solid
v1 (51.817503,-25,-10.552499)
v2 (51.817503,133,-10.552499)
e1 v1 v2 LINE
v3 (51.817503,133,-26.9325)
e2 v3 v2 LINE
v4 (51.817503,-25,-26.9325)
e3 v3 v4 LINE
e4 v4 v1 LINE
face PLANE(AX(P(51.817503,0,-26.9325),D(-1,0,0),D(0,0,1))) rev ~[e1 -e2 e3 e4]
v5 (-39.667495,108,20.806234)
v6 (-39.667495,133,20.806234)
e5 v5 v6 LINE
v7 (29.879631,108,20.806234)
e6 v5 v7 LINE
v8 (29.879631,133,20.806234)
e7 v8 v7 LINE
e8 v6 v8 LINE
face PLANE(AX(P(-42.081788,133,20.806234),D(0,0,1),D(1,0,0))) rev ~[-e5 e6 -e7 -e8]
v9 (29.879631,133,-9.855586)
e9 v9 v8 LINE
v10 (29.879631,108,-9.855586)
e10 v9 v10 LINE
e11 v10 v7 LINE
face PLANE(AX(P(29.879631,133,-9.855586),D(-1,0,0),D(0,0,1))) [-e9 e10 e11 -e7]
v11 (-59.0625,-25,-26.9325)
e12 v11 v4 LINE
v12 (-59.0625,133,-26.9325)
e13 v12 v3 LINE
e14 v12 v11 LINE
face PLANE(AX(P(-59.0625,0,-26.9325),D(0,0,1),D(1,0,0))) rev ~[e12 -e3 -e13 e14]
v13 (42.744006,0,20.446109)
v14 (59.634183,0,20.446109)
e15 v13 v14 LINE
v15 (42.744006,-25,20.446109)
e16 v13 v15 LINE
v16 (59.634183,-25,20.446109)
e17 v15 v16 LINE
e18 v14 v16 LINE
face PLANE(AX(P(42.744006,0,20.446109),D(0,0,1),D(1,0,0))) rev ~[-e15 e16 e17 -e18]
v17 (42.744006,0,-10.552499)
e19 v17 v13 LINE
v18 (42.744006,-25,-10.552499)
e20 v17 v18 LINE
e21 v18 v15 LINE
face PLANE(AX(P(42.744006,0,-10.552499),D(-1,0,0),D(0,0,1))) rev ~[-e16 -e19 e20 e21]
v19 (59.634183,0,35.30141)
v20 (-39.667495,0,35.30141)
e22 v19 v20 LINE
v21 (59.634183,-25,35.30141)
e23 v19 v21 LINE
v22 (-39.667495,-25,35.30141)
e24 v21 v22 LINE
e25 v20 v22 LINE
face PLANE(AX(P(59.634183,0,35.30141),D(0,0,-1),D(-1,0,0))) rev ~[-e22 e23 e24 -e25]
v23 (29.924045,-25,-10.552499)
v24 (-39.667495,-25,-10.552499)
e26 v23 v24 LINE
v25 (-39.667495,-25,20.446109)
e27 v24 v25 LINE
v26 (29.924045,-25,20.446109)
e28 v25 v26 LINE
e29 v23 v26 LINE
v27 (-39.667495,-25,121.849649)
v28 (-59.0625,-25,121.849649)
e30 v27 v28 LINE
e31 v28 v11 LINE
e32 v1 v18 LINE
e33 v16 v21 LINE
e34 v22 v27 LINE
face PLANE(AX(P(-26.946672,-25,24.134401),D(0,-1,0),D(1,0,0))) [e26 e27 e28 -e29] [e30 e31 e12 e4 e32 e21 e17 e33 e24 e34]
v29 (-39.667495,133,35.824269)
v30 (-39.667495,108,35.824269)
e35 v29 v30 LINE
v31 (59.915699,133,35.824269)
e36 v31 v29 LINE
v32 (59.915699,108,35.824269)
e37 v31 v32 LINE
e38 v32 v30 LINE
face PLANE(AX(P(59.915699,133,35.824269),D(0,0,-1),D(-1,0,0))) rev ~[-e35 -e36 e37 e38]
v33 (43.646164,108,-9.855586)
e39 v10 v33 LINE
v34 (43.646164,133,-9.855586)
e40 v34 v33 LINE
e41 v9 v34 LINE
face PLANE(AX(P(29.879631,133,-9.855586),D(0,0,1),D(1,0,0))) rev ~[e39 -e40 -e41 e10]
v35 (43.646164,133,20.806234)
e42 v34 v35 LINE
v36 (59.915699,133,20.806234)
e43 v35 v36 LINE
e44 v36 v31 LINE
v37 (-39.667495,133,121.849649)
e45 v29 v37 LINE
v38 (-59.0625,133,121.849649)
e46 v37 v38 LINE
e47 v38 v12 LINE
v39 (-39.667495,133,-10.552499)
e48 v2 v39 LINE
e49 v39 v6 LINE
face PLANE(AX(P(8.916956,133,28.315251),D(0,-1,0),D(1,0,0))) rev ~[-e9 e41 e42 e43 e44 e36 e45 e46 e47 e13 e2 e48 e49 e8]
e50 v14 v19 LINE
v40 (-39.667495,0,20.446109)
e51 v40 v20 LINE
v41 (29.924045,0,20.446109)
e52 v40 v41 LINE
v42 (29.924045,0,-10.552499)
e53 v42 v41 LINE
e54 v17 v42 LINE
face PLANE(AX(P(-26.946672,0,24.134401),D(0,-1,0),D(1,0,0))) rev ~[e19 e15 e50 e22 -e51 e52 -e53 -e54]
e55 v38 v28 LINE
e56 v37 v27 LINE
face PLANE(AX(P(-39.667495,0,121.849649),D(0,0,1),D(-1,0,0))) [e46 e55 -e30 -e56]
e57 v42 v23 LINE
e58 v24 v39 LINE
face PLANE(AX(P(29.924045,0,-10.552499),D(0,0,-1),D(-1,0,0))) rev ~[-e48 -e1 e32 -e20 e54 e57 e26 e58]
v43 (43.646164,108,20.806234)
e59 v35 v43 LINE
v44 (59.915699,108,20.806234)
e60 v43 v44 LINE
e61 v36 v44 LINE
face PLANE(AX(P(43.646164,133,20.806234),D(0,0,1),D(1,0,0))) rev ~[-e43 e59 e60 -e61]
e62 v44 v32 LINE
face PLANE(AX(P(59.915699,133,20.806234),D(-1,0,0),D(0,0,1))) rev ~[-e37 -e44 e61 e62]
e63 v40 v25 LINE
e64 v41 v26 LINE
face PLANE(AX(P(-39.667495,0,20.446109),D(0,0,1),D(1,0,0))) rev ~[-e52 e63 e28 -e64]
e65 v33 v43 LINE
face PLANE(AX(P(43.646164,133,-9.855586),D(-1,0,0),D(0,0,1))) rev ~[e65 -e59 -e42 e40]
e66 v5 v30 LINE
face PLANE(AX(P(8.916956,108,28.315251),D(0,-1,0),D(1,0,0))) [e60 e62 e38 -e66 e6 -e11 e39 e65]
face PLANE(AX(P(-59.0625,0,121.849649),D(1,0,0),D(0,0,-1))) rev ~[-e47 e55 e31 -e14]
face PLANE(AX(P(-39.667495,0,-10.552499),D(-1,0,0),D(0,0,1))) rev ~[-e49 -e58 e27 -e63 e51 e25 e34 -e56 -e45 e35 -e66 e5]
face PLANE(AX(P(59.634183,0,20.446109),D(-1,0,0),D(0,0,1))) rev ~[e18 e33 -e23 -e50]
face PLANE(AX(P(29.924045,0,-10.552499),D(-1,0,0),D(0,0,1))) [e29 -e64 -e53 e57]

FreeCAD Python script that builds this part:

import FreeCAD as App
import Part
import Sketcher
from FreeCAD import Vector
Q = App.Units.Quantity


def add_polygon(sketch, points):
    """Adds a closed chain of lines whose ends are joined by coincident constraints."""
    first, n = sketch.GeometryCount, len(points)
    for a, b in zip(points, points[1:] + points[:1]):
        sketch.addGeometry(Part.LineSegment(App.Vector(*a, 0), App.Vector(*b, 0)), False)
    for i in range(n):
        sketch.addConstraint(Sketcher.Constraint("Coincident", first + i, 2, first + (i + 1) % n, 1))

doc = App.newDocument("Part")
body = doc.addObject("PartDesign::Body", "Body")

# Sketch on XZ plane
sketch1 = doc.addObject("Sketcher::SketchObject", "Sketch")
body.addObject(sketch1)
sketch1.AttachmentSupport = (doc.XZ_Plane, [""])
sketch1.MapMode = "FlatFace"
add_polygon(sketch1, [(-40, -11), (-40, 122), (-59, 122), (-59, -27), (52, -27), (52, -11)])  # lines 0-5
sketch1.addConstraint([
    Sketcher.Constraint("Vertical", 0),
    Sketcher.Constraint("Horizontal", 1),
    Sketcher.Constraint("Vertical", 2),
    Sketcher.Constraint("Horizontal", 3),
    Sketcher.Constraint("Vertical", 4),
    Sketcher.Constraint("Horizontal", 5),
    Sketcher.Constraint("DistanceY", 4, 1, 4, 2, Q("16.380001 mm")),
    Sketcher.Constraint("DistanceX", 5, 2, 5, 1, Q("91.484998 mm")),
    Sketcher.Constraint("DistanceY", 0, 1, 0, 2, Q("132.402148 mm")),
    Sketcher.Constraint("DistanceX", 1, 2, -1, 1, Q("59.0625 mm")),
    Sketcher.Constraint("DistanceY", 2, 2, -1, 1, Q("26.9325 mm")),
    Sketcher.Constraint("DistanceX", 1, 2, 1, 1, Q("19.395005 mm")),
])
pad1 = doc.addObject("PartDesign::Pad", "Pad")
body.addObject(pad1)
pad1.Profile = sketch1
pad1.Length = 133
pad1.Reversed = True

# Sketch on XZ plane
sketch2 = doc.addObject("Sketcher::SketchObject", "Sketch001")
body.addObject(sketch2)
sketch2.AttachmentSupport = (doc.XZ_Plane, [""])
sketch2.MapMode = "FlatFace"
add_polygon(sketch2, [(-40, 35), (-40, 122), (-59, 122), (-59, -27), (52, -27), (52, -11), (43, -11), (43, 20), (60, 20), (60, 35)])  # lines 0-9
add_polygon(sketch2, [(-40, -11), (-40, 20), (30, 20), (30, -11)])  # lines 10-13
sketch2.addConstraint([
    Sketcher.Constraint("Vertical", 0),
    Sketcher.Constraint("Horizontal", 1),
    Sketcher.Constraint("Vertical", 2),
    Sketcher.Constraint("Horizontal", 3),
    Sketcher.Constraint("Vertical", 4),
    Sketcher.Constraint("Horizontal", 5),
    Sketcher.Constraint("Vertical", 6),
    Sketcher.Constraint("Horizontal", 7),
    Sketcher.Constraint("Vertical", 8),
    Sketcher.Constraint("Horizontal", 9),
    Sketcher.Constraint("Vertical", 10),
    Sketcher.Constraint("Horizontal", 11),
    Sketcher.Constraint("Vertical", 12),
    Sketcher.Constraint("Horizontal", 13),
    Sketcher.Constraint("Horizontal", 7, 2, 10, 2),
    Sketcher.Constraint("Horizontal", 5, 2, 12, 2),
    Sketcher.Constraint("Vertical", 9, 2, 10, 2),
    Sketcher.Constraint("DistanceY", 4, 1, 4, 2, Q("16.380001 mm")),
    Sketcher.Constraint("DistanceY", 8, 1, 8, 2, Q("14.855301 mm")),
    Sketcher.Constraint("DistanceX", 0, 2, 3, 2, Q("91.484998 mm")),
    Sketcher.Constraint("DistanceX", 9, 2, 9, 1, Q("99.301678 mm")),
    Sketcher.Constraint("DistanceX", 11, 1, 11, 2, Q("69.591541 mm")),
    Sketcher.Constraint("DistanceY", 0, 1, 0, 2, Q("86.548239 mm")),
    Sketcher.Constraint("DistanceY", 2, 2, 2, 1, Q("148.782149 mm")),
    Sketcher.Constraint("DistanceX", 1, 2, -1, 1, Q("59.0625 mm")),
    Sketcher.Constraint("DistanceY", 2, 2, -1, 1, Q("26.9325 mm")),
    Sketcher.Constraint("DistanceX", 0, 2, 5, 2, Q("82.411501 mm")),
    Sketcher.Constraint("DistanceX", 1, 2, 1, 1, Q("19.395005 mm")),
])
pad2 = doc.addObject("PartDesign::Pad", "Pad001")
body.addObject(pad2)
pad2.Profile = sketch2
pad2.Length = 25

# Sketch on XZ plane
sketch3 = doc.addObject("Sketcher::SketchObject", "Sketch002")
body.addObject(sketch3)
sketch3.AttachmentSupport = (doc.XZ_Plane, [""])
sketch3.MapMode = "FlatFace"
sketch3.AttachmentOffset = App.Placement(Vector(0, 0, -133), App.Rotation())
add_polygon(sketch3, [(60, 21), (60, 36), (-42, 36), (-42, 21), (30, 21), (30, -10), (44, -10), (44, 21)])  # lines 0-7
sketch3.addConstraint([
    Sketcher.Constraint("Vertical", 0),
    Sketcher.Constraint("Horizontal", 1),
    Sketcher.Constraint("Vertical", 2),
    Sketcher.Constraint("Horizontal", 3),
    Sketcher.Constraint("Vertical", 4),
    Sketcher.Constraint("Horizontal", 5),
    Sketcher.Constraint("Vertical", 6),
    Sketcher.Constraint("Horizontal", 7),
    Sketcher.Constraint("Horizontal", 3, 2, 6, 2),
    Sketcher.Constraint("DistanceX", 3, 1, 3, 2, Q("71.96142 mm")),
    Sketcher.Constraint("DistanceY", 4, 2, 4, 1, Q("30.66182 mm")),
    Sketcher.Constraint("DistanceX", -1, 1, 0, 2, Q("59.915699 mm")),
    Sketcher.Constraint("DistanceX", 1, 2, 1, 1, Q("101.997487 mm")),
    Sketcher.Constraint("DistanceX", 5, 1, 5, 2, Q("13.766533 mm")),
    Sketcher.Constraint("DistanceY", 0, 1, 0, 2, Q("15.018035 mm")),
    Sketcher.Constraint("DistanceY", -1, 1, 0, 2, Q("35.824269 mm")),
])
pad3 = doc.addObject("PartDesign::Pad", "Pad002")
body.addObject(pad3)
pad3.Profile = sketch3
pad3.Length = 25

doc.recompute()
